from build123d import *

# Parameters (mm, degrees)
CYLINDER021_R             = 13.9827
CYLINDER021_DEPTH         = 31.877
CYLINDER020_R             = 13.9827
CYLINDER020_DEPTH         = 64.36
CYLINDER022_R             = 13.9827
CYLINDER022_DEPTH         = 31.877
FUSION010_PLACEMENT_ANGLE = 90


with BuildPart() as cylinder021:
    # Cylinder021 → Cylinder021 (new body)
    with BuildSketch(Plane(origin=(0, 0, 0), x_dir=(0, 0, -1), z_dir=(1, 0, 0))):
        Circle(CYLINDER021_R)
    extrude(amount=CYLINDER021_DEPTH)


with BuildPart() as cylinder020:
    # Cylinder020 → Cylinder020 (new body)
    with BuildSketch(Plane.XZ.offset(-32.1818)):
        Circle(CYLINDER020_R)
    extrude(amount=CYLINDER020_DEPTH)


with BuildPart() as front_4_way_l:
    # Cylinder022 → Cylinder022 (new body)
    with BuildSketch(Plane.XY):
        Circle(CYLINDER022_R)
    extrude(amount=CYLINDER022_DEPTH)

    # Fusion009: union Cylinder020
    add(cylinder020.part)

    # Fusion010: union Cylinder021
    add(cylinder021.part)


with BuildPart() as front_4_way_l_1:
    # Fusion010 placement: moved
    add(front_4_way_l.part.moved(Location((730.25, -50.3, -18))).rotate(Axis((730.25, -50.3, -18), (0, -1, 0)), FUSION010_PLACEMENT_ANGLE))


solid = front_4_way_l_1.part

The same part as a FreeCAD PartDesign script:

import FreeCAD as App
import Part
import Sketcher
Q = App.Units.Quantity

doc = App.newDocument("Part")
params = doc.addObject("Spreadsheet::Sheet", "Params")
for row, (alias, value) in enumerate([
    ("sketch1_diameter", "1.101 in"),
    ("pad1_length", "1.255 in"),
    ("sketch2_diameter", "1.101 in"),
    ("pad2_length", "64.36 mm"),
    ("sketch3_diameter", "1.101 in"),
    ("pad3_length", "1.255 in"),
], start=1):
    params.set(f"A{row}", alias)
    params.set(f"B{row}", "=" + value)
    params.setAlias(f"B{row}", alias)

body = doc.addObject("PartDesign::Body", "Body")

sketch1 = body.newObject("Sketcher::SketchObject", "Sketch")
sketch1.AttachmentSupport = (doc.getObject("YZ_Plane"), [""])
sketch1.MapMode = "FlatFace"
sketch1.addGeometry(Part.Circle(App.Vector(0, 0, 0), App.Vector(0, 0, 1), 13.9827), False)
sketch1.addConstraint(Sketcher.Constraint("Coincident", 0, 3, -1, 1))
sketch1.addConstraint(Sketcher.Constraint("Diameter", 0, Q("1.101 in")))
sketch1.setExpression("Constraints[1]", "Params.sketch1_diameter")
pad1 = body.newObject("PartDesign::Pad", "Pad")
pad1.Profile = sketch1
pad1.setExpression("Length", "Params.pad1_length")
body2 = doc.addObject("PartDesign::Body", "Body001")

sketch2 = body2.newObject("Sketcher::SketchObject", "Sketch001")
sketch2.AttachmentSupport = (doc.getObject("XZ_Plane001"), [""])
sketch2.MapMode = "FlatFace"
sketch2.AttachmentOffset = App.Placement(App.Vector(0, 0, -1.267 * 25.4), App.Rotation())
sketch2.addGeometry(Part.Circle(App.Vector(0, 0, 0), App.Vector(0, 0, 1), 13.9827), False)
sketch2.addConstraint(Sketcher.Constraint("Coincident", 0, 3, -1, 1))
sketch2.addConstraint(Sketcher.Constraint("Diameter", 0, Q("1.101 in")))
sketch2.setExpression("Constraints[1]", "Params.sketch2_diameter")
pad2 = body2.newObject("PartDesign::Pad", "Pad001")
pad2.Profile = sketch2
pad2.setExpression("Length", "Params.pad2_length")
body3 = doc.addObject("PartDesign::Body", "Body002")

sketch3 = body3.newObject("Sketcher::SketchObject", "Sketch002")
sketch3.AttachmentSupport = (doc.getObject("XY_Plane002"), [""])
sketch3.MapMode = "FlatFace"
sketch3.addGeometry(Part.Circle(App.Vector(0, 0, 0), App.Vector(0, 0, 1), 13.9827), False)
sketch3.addConstraint(Sketcher.Constraint("Coincident", 0, 3, -1, 1))
sketch3.addConstraint(Sketcher.Constraint("Diameter", 0, Q("1.101 in")))
sketch3.setExpression("Constraints[1]", "Params.sketch3_diameter")
pad3 = body3.newObject("PartDesign::Pad", "Pad002")
pad3.Profile = sketch3
pad3.setExpression("Length", "Params.pad3_length")
doc.recompute()

boolean = body3.newObject("PartDesign::Boolean", "Boolean")
boolean.Type = "Fuse"
boolean.addObjects([body2])
doc.recompute()

boolean2 = body3.newObject("PartDesign::Boolean", "Boolean001")
boolean2.Type = "Fuse"
boolean2.addObjects([body])
body4 = doc.addObject("PartDesign::Body", "Body003")
doc.recompute()

body3.Placement = App.Placement(App.Vector(730.25, -50.3, -18), App.Rotation(App.Vector(0, -1, 0), 90))
boolean3 = body4.newObject("PartDesign::Boolean", "Boolean002")
boolean3.Type = "Fuse"
boolean3.addObjects([body3])

doc.recompute()
